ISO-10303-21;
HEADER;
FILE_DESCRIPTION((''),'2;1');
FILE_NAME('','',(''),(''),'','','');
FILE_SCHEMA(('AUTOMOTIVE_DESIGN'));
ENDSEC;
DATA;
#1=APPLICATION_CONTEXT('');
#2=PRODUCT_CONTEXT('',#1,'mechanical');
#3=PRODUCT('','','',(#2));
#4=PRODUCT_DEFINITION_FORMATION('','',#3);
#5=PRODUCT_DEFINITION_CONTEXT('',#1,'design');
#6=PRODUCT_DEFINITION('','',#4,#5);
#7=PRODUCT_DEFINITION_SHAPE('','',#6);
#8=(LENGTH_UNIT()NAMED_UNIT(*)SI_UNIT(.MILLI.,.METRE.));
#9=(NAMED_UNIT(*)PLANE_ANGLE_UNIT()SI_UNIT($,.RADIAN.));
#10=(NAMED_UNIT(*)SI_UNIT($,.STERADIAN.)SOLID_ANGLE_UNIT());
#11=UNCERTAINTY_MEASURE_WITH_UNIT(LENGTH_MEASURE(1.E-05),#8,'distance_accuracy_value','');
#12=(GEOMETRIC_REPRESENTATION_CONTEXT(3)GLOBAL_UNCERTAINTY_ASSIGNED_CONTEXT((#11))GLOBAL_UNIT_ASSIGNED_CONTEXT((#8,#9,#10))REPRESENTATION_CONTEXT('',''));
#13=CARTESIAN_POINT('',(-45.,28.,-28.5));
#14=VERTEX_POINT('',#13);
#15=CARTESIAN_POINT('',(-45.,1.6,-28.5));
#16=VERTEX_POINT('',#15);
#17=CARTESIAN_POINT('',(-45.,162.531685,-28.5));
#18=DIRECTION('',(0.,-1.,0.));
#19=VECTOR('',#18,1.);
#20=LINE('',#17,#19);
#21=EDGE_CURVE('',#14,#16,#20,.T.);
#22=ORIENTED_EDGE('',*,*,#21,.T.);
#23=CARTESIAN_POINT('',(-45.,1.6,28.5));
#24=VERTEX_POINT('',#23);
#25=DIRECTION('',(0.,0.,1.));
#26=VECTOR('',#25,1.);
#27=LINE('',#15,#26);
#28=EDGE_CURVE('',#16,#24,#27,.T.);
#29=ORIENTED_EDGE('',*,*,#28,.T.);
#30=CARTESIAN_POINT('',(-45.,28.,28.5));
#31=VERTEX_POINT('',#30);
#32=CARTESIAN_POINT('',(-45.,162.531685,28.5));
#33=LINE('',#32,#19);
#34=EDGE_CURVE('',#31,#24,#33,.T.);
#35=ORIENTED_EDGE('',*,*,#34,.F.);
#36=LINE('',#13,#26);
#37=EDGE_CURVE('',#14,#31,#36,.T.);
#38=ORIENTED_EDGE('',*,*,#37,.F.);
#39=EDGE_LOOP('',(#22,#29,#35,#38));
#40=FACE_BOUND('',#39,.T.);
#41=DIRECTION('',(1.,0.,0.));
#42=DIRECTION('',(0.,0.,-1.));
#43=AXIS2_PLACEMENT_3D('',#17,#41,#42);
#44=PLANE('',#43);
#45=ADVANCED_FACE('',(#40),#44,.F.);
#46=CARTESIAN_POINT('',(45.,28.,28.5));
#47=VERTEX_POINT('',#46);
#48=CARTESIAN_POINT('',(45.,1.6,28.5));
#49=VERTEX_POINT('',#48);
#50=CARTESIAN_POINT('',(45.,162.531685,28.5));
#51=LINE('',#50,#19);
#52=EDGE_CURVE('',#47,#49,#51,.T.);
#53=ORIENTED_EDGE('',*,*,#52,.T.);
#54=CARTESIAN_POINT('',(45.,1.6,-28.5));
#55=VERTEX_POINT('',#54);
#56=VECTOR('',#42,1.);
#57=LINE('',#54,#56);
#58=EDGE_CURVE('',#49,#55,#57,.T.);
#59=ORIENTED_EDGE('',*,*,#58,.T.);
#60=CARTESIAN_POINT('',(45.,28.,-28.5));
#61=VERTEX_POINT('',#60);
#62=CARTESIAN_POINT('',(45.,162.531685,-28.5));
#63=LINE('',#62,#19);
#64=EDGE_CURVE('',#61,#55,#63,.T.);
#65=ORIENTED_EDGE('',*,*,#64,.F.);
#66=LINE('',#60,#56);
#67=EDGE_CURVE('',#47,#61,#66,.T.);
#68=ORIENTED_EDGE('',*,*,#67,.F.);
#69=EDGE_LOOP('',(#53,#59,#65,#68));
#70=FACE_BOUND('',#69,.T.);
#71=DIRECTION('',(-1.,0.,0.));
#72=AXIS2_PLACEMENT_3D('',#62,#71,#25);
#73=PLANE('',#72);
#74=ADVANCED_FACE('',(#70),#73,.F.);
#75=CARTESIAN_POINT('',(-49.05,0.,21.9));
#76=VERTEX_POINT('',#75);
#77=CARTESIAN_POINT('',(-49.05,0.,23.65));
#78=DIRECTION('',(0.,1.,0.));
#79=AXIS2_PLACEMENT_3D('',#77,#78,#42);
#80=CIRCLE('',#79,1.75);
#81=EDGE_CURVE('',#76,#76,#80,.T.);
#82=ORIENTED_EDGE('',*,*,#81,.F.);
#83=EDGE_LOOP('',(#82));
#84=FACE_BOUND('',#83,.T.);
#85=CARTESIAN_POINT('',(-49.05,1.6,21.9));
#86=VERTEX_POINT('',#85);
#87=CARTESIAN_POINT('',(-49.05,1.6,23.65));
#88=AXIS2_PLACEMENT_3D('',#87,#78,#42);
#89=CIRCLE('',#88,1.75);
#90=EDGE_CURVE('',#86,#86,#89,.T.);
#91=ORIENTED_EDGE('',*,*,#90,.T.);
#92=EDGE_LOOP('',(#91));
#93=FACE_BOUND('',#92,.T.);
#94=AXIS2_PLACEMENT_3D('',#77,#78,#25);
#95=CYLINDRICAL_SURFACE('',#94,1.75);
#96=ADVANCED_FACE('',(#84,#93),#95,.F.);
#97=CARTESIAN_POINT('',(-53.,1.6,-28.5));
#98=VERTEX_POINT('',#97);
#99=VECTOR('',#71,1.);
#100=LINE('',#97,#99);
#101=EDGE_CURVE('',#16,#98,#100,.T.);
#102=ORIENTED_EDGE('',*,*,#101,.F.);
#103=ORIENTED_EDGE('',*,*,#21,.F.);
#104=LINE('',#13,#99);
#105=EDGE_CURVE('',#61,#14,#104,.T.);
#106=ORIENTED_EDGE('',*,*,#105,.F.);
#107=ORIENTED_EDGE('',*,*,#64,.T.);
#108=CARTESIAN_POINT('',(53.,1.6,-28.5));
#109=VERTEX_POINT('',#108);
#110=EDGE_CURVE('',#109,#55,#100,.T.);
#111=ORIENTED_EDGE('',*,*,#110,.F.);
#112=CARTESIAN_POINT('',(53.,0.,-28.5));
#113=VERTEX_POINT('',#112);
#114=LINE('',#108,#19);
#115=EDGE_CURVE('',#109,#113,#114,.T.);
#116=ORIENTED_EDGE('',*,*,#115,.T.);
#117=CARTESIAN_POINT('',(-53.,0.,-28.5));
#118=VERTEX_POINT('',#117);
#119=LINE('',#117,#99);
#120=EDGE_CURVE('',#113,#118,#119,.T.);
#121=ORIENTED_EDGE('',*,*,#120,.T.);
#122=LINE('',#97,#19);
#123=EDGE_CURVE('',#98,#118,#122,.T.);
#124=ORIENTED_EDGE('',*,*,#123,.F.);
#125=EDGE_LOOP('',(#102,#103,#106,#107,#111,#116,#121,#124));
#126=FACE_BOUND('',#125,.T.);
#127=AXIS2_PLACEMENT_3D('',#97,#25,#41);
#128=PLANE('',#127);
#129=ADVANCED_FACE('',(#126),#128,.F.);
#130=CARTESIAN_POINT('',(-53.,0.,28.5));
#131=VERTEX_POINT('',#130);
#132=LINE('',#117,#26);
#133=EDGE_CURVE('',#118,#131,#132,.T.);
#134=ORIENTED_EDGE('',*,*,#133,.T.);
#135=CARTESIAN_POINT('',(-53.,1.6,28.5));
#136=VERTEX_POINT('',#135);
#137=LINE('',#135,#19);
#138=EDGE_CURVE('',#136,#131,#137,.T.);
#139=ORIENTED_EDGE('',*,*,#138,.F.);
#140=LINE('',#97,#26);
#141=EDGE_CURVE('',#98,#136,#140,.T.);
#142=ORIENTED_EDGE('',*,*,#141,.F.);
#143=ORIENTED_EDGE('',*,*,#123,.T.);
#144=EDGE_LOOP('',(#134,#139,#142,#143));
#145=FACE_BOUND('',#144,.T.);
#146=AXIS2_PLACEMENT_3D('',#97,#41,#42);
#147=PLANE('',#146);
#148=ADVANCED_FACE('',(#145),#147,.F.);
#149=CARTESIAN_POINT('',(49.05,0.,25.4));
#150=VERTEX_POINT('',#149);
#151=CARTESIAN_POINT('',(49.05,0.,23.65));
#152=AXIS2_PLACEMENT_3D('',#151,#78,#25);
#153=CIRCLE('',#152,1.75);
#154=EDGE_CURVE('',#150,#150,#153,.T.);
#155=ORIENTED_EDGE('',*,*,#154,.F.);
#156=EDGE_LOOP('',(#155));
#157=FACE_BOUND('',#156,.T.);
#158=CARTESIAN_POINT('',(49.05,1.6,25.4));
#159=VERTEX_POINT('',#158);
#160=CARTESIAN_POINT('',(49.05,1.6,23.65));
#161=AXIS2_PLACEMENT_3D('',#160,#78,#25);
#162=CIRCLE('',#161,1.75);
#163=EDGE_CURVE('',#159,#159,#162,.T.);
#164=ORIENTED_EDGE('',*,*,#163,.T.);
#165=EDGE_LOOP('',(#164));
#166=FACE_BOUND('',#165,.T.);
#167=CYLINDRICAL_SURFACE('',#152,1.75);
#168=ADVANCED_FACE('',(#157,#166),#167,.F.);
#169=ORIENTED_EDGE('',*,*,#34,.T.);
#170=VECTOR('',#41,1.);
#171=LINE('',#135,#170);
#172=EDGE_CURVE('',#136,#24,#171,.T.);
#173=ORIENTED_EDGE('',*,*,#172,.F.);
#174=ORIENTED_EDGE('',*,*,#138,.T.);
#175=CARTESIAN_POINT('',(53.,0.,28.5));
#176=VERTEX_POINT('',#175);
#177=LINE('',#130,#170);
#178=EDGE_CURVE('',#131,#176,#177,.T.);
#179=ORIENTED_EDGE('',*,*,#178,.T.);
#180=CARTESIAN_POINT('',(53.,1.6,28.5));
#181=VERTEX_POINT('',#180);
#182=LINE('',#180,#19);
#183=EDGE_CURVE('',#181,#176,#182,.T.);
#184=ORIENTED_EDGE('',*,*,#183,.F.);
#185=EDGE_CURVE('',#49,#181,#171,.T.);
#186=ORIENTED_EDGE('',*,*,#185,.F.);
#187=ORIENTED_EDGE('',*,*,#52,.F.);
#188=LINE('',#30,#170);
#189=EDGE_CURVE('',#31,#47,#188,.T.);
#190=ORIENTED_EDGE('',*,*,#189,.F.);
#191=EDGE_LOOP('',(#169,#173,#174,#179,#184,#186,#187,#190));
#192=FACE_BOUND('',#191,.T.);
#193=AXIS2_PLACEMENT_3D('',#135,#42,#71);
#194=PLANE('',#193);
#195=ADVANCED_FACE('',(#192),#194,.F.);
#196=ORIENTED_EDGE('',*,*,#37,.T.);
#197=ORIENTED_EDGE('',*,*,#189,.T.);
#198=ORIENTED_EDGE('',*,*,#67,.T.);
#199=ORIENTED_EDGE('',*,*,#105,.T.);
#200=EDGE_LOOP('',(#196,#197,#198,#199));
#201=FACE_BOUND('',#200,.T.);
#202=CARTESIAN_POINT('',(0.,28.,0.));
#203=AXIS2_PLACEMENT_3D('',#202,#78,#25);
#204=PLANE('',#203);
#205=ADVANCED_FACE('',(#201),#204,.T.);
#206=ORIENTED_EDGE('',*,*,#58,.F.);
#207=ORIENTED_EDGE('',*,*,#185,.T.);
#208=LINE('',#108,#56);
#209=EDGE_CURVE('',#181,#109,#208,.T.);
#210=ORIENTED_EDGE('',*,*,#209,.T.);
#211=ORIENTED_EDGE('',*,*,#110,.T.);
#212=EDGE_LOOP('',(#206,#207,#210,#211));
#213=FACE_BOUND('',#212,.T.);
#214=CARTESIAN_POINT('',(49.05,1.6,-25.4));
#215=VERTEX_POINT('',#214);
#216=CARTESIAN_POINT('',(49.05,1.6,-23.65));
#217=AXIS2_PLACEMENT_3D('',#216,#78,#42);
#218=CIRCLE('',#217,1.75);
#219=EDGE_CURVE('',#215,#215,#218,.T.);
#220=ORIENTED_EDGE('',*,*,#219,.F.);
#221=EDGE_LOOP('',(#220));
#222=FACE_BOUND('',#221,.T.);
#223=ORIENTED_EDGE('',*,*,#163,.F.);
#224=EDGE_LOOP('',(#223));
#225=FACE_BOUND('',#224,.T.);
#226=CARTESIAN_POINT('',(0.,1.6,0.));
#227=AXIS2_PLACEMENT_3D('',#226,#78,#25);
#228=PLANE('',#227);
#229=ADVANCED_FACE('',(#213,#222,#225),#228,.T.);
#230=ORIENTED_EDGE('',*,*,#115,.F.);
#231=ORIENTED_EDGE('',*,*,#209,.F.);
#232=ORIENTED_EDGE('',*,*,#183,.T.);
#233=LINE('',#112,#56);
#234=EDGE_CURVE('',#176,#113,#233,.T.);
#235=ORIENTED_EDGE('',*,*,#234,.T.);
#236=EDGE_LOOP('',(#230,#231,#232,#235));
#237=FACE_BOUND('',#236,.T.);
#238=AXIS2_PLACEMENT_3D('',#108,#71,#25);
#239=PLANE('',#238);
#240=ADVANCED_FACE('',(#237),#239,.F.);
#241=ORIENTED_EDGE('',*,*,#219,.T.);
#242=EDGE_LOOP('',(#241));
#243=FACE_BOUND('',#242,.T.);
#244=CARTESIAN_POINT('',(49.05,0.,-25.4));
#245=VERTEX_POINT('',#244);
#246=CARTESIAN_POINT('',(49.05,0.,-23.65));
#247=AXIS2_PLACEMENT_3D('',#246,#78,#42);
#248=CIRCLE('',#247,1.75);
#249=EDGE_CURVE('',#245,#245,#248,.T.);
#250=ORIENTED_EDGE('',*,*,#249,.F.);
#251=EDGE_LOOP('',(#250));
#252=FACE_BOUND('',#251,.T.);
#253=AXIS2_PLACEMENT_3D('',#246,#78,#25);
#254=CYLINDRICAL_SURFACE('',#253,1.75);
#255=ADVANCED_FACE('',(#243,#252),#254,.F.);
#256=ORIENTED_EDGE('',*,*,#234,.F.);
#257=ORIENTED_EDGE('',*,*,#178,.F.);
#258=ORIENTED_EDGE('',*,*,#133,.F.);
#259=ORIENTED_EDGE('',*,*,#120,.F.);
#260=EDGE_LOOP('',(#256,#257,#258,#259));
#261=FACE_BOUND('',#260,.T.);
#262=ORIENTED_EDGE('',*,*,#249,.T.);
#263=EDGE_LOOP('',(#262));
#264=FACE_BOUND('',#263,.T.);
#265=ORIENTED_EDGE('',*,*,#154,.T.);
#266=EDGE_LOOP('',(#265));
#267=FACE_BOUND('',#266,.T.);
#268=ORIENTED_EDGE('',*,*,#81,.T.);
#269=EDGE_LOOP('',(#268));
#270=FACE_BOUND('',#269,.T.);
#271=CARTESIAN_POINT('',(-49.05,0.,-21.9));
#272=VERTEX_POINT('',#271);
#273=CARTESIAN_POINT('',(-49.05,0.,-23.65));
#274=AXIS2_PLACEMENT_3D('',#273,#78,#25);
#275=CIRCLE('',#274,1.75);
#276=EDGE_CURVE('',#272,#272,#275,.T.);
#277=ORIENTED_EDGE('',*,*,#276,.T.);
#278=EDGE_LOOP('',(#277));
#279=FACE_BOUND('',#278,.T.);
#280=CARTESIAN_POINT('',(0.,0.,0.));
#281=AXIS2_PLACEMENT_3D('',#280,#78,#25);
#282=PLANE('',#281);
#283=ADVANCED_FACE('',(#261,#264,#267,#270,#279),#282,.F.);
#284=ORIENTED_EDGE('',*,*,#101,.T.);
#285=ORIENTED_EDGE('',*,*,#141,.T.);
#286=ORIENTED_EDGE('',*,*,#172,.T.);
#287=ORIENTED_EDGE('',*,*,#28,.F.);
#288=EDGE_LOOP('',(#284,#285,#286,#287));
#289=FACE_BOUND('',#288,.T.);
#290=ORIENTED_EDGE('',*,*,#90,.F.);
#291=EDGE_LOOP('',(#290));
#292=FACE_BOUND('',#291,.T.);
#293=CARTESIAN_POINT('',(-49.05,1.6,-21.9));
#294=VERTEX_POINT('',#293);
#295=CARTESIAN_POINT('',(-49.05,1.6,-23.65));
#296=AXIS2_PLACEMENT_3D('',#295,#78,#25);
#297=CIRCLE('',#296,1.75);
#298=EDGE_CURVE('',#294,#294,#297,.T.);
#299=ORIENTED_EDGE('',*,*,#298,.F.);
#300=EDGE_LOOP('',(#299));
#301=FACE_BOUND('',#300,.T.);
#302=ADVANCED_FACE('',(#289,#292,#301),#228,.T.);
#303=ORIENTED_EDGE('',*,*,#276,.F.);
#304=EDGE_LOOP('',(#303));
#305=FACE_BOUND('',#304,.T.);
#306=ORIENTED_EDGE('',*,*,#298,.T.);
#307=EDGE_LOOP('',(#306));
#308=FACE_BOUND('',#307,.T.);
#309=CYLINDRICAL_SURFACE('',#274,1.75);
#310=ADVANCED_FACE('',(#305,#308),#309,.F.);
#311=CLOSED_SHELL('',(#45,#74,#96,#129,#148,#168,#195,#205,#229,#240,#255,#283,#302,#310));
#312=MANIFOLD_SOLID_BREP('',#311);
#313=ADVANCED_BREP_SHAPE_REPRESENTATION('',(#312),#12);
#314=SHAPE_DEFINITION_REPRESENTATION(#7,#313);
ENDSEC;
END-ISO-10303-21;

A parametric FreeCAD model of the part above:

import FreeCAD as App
import Part
import Sketcher

V = App.Vector
Q = App.Units.Quantity


def add_polygon(sketch, points):
    """Adds a closed chain of lines whose ends are joined by coincident constraints."""
    first, n = sketch.GeometryCount, len(points)
    for a, b in zip(points, points[1:] + points[:1]):
        sketch.addGeometry(Part.LineSegment(App.Vector(*a, 0), App.Vector(*b, 0)), False)
    for i in range(n):
        sketch.addConstraint(Sketcher.Constraint("Coincident", first + i, 2, first + (i + 1) % n, 1))

doc = App.newDocument("Part")
body = doc.addObject("PartDesign::Body", "Body")

sketch1 = doc.addObject("Sketcher::SketchObject", "Sketch")
body.addObject(sketch1)
sketch1.AttachmentSupport = (doc.XZ_Plane, [""])
sketch1.MapMode = "FlatFace"
add_polygon(sketch1, [(-53, -28.5), (-53, 28.5), (53, 28.5), (53, -28.5)])
sketch1.addConstraint(Sketcher.Constraint("Vertical", 0))
sketch1.addConstraint(Sketcher.Constraint("Horizontal", 1))
sketch1.addConstraint(Sketcher.Constraint("Vertical", 2))
sketch1.addConstraint(Sketcher.Constraint("Horizontal", 3))
sketch1.addConstraint(Sketcher.Constraint("Symmetric", 0, 2, 2, 2, -1, 1))
sketch1.addConstraint(Sketcher.Constraint("DistanceX", 1, 1, 1, 2, Q("106 mm")))
sketch1.addConstraint(Sketcher.Constraint("DistanceY", 0, 1, 0, 2, Q("57 mm")))
pad1 = doc.addObject("PartDesign::Pad", "Pad")
body.addObject(pad1)
pad1.Profile = sketch1
pad1.Length = 1.6
pad1.Reversed = True

sketch2 = doc.addObject("Sketcher::SketchObject", "Sketch001")
body.addObject(sketch2)
sketch2.AttachmentSupport = (doc.XZ_Plane, [""])
sketch2.MapMode = "FlatFace"
sketch2.AttachmentOffset = App.Placement(V(0, 0, -1.6), App.Rotation())
sketch2.addGeometry(Part.Circle(V(-49.05, -23.65, 0), V(0, 0, 1), 1.75), False)
sketch2.addGeometry(Part.Circle(V(-49.05, 23.65, 0), V(0, 0, 1), 1.75), False)
sketch2.addGeometry(Part.Circle(V(49.05, 23.65, 0), V(0, 0, 1), 1.75), False)
sketch2.addGeometry(Part.Circle(V(49.05, -23.65, 0), V(0, 0, 1), 1.75), False)
sketch2.addConstraint(Sketcher.Constraint("Equal", 0, 1))
sketch2.addConstraint(Sketcher.Constraint("Equal", 1, 2))
sketch2.addConstraint(Sketcher.Constraint("Equal", 2, 3))
sketch2.addConstraint(Sketcher.Constraint("Symmetric", 0, 3, 2, 3, -1, 1))
sketch2.addConstraint(Sketcher.Constraint("Symmetric", 1, 3, 3, 3, -1, 1))
sketch2.addConstraint(Sketcher.Constraint("Symmetric", 1, 3, 2, 3, -2))
sketch2.addConstraint(Sketcher.Constraint("Diameter", 0, Q("3.5 mm")))
sketch2.addConstraint(Sketcher.Constraint("DistanceY", 0, 3, 1, 3, Q("47.3 mm")))
sketch2.addConstraint(Sketcher.Constraint("DistanceX", 1, 3, 2, 3, Q("98.1 mm")))
pocket1 = doc.addObject("PartDesign::Pocket", "Pocket")
body.addObject(pocket1)
pocket1.Profile = sketch2
pocket1.Length = 1.6
pocket1.Reversed = True

sketch3 = doc.addObject("Sketcher::SketchObject", "Sketch002")
body.addObject(sketch3)
sketch3.AttachmentSupport = (doc.XZ_Plane, [""])
sketch3.MapMode = "FlatFace"
sketch3.AttachmentOffset = App.Placement(V(0, 0, -1.6), App.Rotation())
add_polygon(sketch3, [(-45, -28.5), (-45, 28.5), (45, 28.5), (45, -28.5)])
sketch3.addConstraint(Sketcher.Constraint("Vertical", 0))
sketch3.addConstraint(Sketcher.Constraint("Horizontal", 1))
sketch3.addConstraint(Sketcher.Constraint("Vertical", 2))
sketch3.addConstraint(Sketcher.Constraint("Horizontal", 3))
sketch3.addConstraint(Sketcher.Constraint("Symmetric", 0, 2, 2, 2, -1, 1))
sketch3.addConstraint(Sketcher.Constraint("DistanceX", 1, 1, 1, 2, Q("90 mm")))
sketch3.addConstraint(Sketcher.Constraint("DistanceY", 0, 1, 0, 2, Q("57 mm")))
pad2 = doc.addObject("PartDesign::Pad", "Pad001")
body.addObject(pad2)
pad2.Profile = sketch3
pad2.Length = 26.4
pad2.Reversed = True

doc.recompute()
